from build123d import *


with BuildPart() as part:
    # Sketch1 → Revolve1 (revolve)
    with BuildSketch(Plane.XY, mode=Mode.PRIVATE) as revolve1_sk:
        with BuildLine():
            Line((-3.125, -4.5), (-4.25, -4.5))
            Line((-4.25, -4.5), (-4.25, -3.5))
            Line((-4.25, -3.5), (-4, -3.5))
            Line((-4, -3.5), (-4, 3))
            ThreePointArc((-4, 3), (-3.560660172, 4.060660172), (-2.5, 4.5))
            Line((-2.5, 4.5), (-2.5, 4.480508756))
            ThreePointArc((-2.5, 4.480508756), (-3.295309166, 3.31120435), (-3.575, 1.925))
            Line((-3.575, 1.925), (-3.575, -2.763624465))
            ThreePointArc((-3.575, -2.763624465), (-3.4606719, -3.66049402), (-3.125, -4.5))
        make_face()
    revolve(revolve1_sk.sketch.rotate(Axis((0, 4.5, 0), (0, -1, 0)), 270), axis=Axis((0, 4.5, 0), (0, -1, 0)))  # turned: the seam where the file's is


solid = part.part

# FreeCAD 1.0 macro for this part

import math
import FreeCAD as App
import Part
import Sketcher
Q = App.Units.Quantity

doc = App.newDocument("Part")
body = doc.addObject("PartDesign::Body", "Body")

# Sketch on XY plane
sketch1 = body.newObject("Sketcher::SketchObject", "Sketch")
sketch1.AttachmentSupport = (doc.getObject("XY_Plane"), [""])
sketch1.MapMode = "FlatFace"
sketch1.addGeometry([
    Part.LineSegment(App.Vector(-4.25, -4.5, 0), App.Vector(-3.125, -4.5, 0)),  # 0
    Part.ArcOfCircle(Part.Circle(App.Vector(0, -2.764, 0), App.Vector(0, 0, 1), 3.575), math.radians(-180), math.radians(-151)),  # 1
    Part.LineSegment(App.Vector(-3.575, -2.764, 0), App.Vector(-3.575, 1.925, 0)),  # 2
    Part.ArcOfCircle(Part.Circle(App.Vector(0, 1.925, 0), App.Vector(0, 0, 1), 3.575), math.radians(134), math.radians(180)),  # 3
    Part.LineSegment(App.Vector(-2.5, 4.481, 0), App.Vector(-2.5, 4.5, 0)),  # 4
    Part.ArcOfCircle(Part.Circle(App.Vector(-2.5, 3, 0), App.Vector(0, 0, 1), 1.5), math.radians(90), math.radians(180)),  # 5
    Part.LineSegment(App.Vector(-4, 3, 0), App.Vector(-4, -3.5, 0)),  # 6
    Part.LineSegment(App.Vector(-4, -3.5, 0), App.Vector(-4.25, -3.5, 0)),  # 7
    Part.LineSegment(App.Vector(-4.25, -3.5, 0), App.Vector(-4.25, -4.5, 0)),  # 8
], False)
sketch1.addConstraint([
    Sketcher.Constraint("Coincident", 0, 2, 1, 2),
    Sketcher.Constraint("Tangent", 1, 1, 2, 1),
    Sketcher.Constraint("Tangent", 2, 2, 3, 2),
    Sketcher.Constraint("Coincident", 3, 1, 4, 1),
    Sketcher.Constraint("Coincident", 4, 2, 5, 1),
    Sketcher.Constraint("Tangent", 5, 2, 6, 1),
    Sketcher.Constraint("Coincident", 6, 2, 7, 1),
    Sketcher.Constraint("Coincident", 7, 2, 8, 1),
    Sketcher.Constraint("Coincident", 8, 2, 0, 1),
    Sketcher.Constraint("Horizontal", 0),
    Sketcher.Constraint("Vertical", 2),
    Sketcher.Constraint("Vertical", 4),
    Sketcher.Constraint("Vertical", 6),
    Sketcher.Constraint("Horizontal", 7),
    Sketcher.Constraint("Vertical", 8),
    Sketcher.Constraint("Equal", 1, 3),
    Sketcher.Constraint("PointOnObject", 1, 3, -2),
    Sketcher.Constraint("Vertical", 5, 3, 3, 1),
    Sketcher.Constraint("Radius", 5, Q("1.5 mm")),
    Sketcher.Constraint("DistanceY", 8, 2, 8, 1, Q("1 mm")),
    Sketcher.Constraint("DistanceY", 6, 2, 6, 1, Q("6.5 mm")),
    Sketcher.Constraint("DistanceY", -1, 1, 5, 3, Q("3 mm")),
    Sketcher.Constraint("DistanceX", 5, 2, -1, 1, Q("4 mm")),
    Sketcher.Constraint("Radius", 1, Q("3.575 mm")),
    Sketcher.Constraint("DistanceX", 7, 2, 7, 1, Q("0.25 mm")),
    Sketcher.Constraint("DistanceX", 0, 1, 0, 2, Q("1.125 mm")),
    Sketcher.Constraint("DistanceY", -1, 1, 3, 3, Q("1.925 mm")),
])
revolution = body.newObject("PartDesign::Revolution", "Revolution")
revolution.Profile = sketch1
revolution.ReferenceAxis = (sketch1, ["V_Axis"])
revolution.Angle = 360

doc.recompute()
